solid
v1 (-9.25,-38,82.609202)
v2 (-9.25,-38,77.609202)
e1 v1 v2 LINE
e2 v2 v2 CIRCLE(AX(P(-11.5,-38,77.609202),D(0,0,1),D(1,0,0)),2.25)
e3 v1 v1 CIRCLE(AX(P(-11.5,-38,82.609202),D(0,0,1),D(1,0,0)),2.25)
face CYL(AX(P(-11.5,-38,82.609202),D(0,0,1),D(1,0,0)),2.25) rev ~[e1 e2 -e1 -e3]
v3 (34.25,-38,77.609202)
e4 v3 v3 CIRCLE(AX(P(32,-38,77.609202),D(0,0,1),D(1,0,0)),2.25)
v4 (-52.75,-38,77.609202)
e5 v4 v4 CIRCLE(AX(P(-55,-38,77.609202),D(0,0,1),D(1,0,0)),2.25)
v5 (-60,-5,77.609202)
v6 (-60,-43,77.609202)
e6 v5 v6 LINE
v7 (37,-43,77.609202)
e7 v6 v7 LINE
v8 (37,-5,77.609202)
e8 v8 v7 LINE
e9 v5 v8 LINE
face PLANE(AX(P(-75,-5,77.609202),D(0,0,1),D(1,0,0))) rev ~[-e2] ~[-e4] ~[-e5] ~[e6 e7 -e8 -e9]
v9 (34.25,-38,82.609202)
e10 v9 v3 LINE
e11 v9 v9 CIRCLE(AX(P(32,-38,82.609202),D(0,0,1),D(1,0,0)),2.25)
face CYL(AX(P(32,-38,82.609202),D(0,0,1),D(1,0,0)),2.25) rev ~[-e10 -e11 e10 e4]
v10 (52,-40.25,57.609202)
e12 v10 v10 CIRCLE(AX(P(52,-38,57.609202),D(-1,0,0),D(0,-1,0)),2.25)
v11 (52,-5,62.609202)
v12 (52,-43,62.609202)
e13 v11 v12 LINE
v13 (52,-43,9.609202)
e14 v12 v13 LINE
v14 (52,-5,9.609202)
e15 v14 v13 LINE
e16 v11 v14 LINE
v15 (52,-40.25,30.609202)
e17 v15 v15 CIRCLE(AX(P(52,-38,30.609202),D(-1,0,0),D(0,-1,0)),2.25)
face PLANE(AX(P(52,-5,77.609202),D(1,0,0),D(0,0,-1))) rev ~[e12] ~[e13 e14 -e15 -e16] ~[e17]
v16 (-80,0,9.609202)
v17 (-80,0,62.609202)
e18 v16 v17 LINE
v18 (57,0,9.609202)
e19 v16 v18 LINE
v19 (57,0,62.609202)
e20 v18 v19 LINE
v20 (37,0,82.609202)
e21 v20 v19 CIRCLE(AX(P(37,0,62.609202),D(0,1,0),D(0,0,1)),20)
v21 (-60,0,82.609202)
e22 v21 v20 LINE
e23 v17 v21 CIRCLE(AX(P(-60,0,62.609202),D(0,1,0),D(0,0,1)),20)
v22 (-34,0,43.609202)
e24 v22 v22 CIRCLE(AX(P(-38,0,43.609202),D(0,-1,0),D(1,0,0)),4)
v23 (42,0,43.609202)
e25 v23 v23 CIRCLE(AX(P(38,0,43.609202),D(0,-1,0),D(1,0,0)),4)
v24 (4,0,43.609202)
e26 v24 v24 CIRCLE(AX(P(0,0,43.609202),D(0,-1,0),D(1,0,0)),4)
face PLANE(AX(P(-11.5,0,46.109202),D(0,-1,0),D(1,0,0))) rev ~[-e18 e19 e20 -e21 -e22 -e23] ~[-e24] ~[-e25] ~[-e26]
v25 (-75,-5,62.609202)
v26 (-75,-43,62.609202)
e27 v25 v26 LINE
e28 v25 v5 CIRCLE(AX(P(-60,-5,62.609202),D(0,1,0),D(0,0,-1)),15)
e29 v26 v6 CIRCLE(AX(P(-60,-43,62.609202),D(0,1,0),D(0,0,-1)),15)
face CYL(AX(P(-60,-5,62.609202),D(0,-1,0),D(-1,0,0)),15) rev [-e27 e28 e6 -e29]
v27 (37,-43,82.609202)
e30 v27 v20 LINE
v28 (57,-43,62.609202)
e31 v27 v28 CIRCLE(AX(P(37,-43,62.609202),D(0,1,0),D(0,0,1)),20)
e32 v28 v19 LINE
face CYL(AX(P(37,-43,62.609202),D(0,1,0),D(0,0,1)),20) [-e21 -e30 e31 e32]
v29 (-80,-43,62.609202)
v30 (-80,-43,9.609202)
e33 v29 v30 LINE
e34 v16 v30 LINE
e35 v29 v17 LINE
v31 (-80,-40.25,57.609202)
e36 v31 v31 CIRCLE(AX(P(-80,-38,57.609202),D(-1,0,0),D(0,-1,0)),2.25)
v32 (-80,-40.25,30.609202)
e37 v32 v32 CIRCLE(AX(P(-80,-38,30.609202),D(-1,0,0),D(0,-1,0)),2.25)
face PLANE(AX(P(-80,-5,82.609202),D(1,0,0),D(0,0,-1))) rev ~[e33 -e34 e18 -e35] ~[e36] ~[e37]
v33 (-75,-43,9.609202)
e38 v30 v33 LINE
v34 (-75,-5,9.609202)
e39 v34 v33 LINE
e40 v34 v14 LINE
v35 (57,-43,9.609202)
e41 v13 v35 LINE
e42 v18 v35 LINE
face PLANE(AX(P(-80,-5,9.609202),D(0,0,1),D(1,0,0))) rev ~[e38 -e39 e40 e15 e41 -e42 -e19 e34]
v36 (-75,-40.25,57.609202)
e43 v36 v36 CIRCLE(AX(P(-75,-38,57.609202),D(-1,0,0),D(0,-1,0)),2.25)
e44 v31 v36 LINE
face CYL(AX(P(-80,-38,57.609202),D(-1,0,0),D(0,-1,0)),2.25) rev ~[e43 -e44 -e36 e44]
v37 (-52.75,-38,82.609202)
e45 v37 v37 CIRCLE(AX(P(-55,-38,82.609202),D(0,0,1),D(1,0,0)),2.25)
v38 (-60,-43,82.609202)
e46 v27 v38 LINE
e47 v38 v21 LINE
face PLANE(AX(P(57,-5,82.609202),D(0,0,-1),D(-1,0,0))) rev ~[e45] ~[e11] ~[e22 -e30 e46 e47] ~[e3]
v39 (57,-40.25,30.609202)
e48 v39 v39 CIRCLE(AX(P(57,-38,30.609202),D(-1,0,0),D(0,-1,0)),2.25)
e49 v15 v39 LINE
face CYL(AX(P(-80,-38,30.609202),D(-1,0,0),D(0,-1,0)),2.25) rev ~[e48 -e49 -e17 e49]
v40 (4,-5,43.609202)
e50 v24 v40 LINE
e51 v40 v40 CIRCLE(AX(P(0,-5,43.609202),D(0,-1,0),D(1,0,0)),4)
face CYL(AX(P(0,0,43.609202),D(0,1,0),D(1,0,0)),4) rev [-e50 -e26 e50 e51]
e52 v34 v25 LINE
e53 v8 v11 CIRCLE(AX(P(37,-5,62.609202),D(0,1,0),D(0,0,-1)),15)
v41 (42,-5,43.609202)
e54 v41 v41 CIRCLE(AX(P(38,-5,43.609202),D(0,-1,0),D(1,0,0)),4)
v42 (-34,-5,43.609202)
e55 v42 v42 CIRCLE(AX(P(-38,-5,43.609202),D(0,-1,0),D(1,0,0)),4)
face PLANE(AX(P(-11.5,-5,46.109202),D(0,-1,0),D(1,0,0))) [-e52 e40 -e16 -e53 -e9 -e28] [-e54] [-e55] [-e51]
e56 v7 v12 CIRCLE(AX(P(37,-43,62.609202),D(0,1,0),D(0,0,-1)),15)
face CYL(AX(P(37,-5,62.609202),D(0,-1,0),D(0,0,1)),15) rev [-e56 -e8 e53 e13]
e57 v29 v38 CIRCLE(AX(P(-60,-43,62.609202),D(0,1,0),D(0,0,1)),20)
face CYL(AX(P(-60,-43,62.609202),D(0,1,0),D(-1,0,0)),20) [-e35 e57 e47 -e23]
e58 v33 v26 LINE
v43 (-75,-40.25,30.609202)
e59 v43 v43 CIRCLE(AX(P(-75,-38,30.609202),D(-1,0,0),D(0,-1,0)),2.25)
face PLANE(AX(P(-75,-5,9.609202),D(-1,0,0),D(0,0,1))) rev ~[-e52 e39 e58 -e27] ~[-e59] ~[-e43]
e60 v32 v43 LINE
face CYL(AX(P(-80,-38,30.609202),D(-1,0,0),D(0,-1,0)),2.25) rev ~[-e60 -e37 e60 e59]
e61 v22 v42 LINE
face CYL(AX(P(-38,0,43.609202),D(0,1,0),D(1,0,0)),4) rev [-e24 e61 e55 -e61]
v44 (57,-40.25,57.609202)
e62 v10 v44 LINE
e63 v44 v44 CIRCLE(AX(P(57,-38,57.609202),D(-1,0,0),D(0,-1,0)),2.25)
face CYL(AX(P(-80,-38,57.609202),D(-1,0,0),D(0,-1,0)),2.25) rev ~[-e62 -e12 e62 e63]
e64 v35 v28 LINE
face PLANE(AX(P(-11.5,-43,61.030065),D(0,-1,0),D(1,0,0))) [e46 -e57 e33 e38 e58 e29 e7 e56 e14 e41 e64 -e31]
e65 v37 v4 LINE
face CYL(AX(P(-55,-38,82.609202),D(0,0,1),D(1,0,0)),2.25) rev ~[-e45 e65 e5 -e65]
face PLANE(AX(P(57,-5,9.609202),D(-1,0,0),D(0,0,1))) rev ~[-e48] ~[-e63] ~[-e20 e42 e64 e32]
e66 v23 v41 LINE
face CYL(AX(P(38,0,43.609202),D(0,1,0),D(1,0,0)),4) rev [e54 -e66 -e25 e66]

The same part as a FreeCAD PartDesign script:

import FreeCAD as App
import Part
import Sketcher
from FreeCAD import Vector


def edges_at(feature, points):
    """Names of the edges that pass closest to the given points."""
    edges = feature.Shape.Edges
    near = lambda p: min(range(len(edges)), key=lambda i: edges[i].distToShape(Part.Vertex(*p))[0])
    return sorted({f"Edge{near(p) + 1}" for p in points})

doc = App.newDocument("Part")
body = doc.addObject("PartDesign::Body", "Body")

# Sketch on XZ plane
sketch1 = doc.addObject("Sketcher::SketchObject", "Sketch")
body.addObject(sketch1)
sketch1.AttachmentSupport = (doc.XZ_Plane, [""])
sketch1.MapMode = "FlatFace"
sketch1.addGeometry([
    Part.LineSegment(Vector(-80, 82.6, 0), Vector(-80, 9.6, 0)),  # 0
    Part.LineSegment(Vector(-80, 9.6, 0), Vector(57, 9.6, 0)),  # 1
    Part.LineSegment(Vector(57, 9.6, 0), Vector(57, 82.6, 0)),  # 2
    Part.LineSegment(Vector(57, 82.6, 0), Vector(-80, 82.6, 0)),  # 3
    Part.Circle(Vector(-38, 43.6, 0), Vector(0, 0, 1), 4),  # 4
    Part.Circle(Vector(0, 43.6, 0), Vector(0, 0, 1), 4),  # 5
    Part.Circle(Vector(38, 43.6, 0), Vector(0, 0, 1), 4),  # 6
], False)
sketch1.addConstraint([
    Sketcher.Constraint("Coincident", 0, 2, 1, 1),
    Sketcher.Constraint("Coincident", 1, 2, 2, 1),
    Sketcher.Constraint("Coincident", 2, 2, 3, 1),
    Sketcher.Constraint("Coincident", 3, 2, 0, 1),
    Sketcher.Constraint("Vertical", 0),
    Sketcher.Constraint("Horizontal", 1),
    Sketcher.Constraint("Vertical", 2),
    Sketcher.Constraint("Horizontal", 3),
    Sketcher.Constraint("Equal", 4, 5),
    Sketcher.Constraint("Equal", 5, 6),
    Sketcher.Constraint("Symmetric", 4, 3, 6, 3, -2),
    Sketcher.Constraint("PointOnObject", 5, 3, -2),
    Sketcher.Constraint("Horizontal", 4, 3, 5, 3),
    Sketcher.Constraint("Diameter", 4, 8.0),
    Sketcher.Constraint("DistanceX", 1, 1, 1, 2, 137.0),
    Sketcher.Constraint("DistanceY", 0, 2, 0, 1, 73.0),
    Sketcher.Constraint("DistanceX", 4, 3, -1, 1, 38.0),
    Sketcher.Constraint("DistanceX", 0, 2, -1, 1, 80.0),
    Sketcher.Constraint("DistanceY", 0, 2, 4, 3, 34.0),
    Sketcher.Constraint("DistanceY", -1, 1, 2, 2, 82.609202),
])
pad1 = doc.addObject("PartDesign::Pad", "Pad")
body.addObject(pad1)
pad1.Profile = sketch1
pad1.Length = 5

# Sketch on XZ plane
sketch2 = doc.addObject("Sketcher::SketchObject", "Sketch001")
body.addObject(sketch2)
sketch2.AttachmentSupport = (doc.XZ_Plane, [""])
sketch2.MapMode = "FlatFace"
sketch2.AttachmentOffset = App.Placement(Vector(0, 0, 5), App.Rotation())
sketch2.addGeometry([
    Part.LineSegment(Vector(-80, 83, 0), Vector(-80, 10, 0)),  # 0
    Part.LineSegment(Vector(-80, 10, 0), Vector(-75, 10, 0)),  # 1
    Part.LineSegment(Vector(-75, 10, 0), Vector(-75, 78, 0)),  # 2
    Part.LineSegment(Vector(-75, 78, 0), Vector(52, 78, 0)),  # 3
    Part.LineSegment(Vector(52, 78, 0), Vector(52, 10, 0)),  # 4
    Part.LineSegment(Vector(52, 10, 0), Vector(57, 10, 0)),  # 5
    Part.LineSegment(Vector(57, 10, 0), Vector(57, 83, 0)),  # 6
    Part.LineSegment(Vector(57, 83, 0), Vector(-80, 83, 0)),  # 7
], False)
sketch2.addConstraint([
    Sketcher.Constraint("Coincident", 0, 2, 1, 1),
    Sketcher.Constraint("Coincident", 1, 2, 2, 1),
    Sketcher.Constraint("Coincident", 2, 2, 3, 1),
    Sketcher.Constraint("Coincident", 3, 2, 4, 1),
    Sketcher.Constraint("Coincident", 4, 2, 5, 1),
    Sketcher.Constraint("Coincident", 5, 2, 6, 1),
    Sketcher.Constraint("Coincident", 6, 2, 7, 1),
    Sketcher.Constraint("Coincident", 7, 2, 0, 1),
    Sketcher.Constraint("Vertical", 0),
    Sketcher.Constraint("Horizontal", 1),
    Sketcher.Constraint("Vertical", 2),
    Sketcher.Constraint("Horizontal", 3),
    Sketcher.Constraint("Vertical", 4),
    Sketcher.Constraint("Horizontal", 5),
    Sketcher.Constraint("Vertical", 6),
    Sketcher.Constraint("Horizontal", 7),
    Sketcher.Constraint("Horizontal", 1, 2, 4, 2),
    Sketcher.Constraint("Equal", 1, 5),
    Sketcher.Constraint("DistanceX", 1, 1, 1, 2, 5.0),
    Sketcher.Constraint("DistanceX", 3, 1, 3, 2, 127.0),
    Sketcher.Constraint("DistanceY", 0, 2, 0, 1, 73.0),
    Sketcher.Constraint("DistanceY", 2, 1, 2, 2, 68.0),
    Sketcher.Constraint("DistanceX", 0, 2, -1, 1, 80.0),
    Sketcher.Constraint("DistanceY", -1, 1, 2, 2, 77.609202),
])
pad2 = doc.addObject("PartDesign::Pad", "Pad001")
body.addObject(pad2)
pad2.Profile = sketch2
pad2.Length = 38

# Sketch on YZ plane
sketch3 = doc.addObject("Sketcher::SketchObject", "Sketch002")
body.addObject(sketch3)
sketch3.AttachmentSupport = (doc.YZ_Plane, [""])
sketch3.MapMode = "FlatFace"
sketch3.AttachmentOffset = App.Placement(Vector(0, 0, -80), App.Rotation())
sketch3.addGeometry([
    Part.Circle(Vector(-38, 57.6, 0), Vector(0, 0, 1), 2.2),
    Part.Circle(Vector(-38, 30.6, 0), Vector(0, 0, 1), 2.2),
], False)
sketch3.addConstraint([
    Sketcher.Constraint("Equal", 0, 1),
    Sketcher.Constraint("Vertical", 0, 3, 1, 3),
    Sketcher.Constraint("Diameter", 0, 4.5),
    Sketcher.Constraint("DistanceX", 0, 3, -1, 1, 38.0),
    Sketcher.Constraint("DistanceY", 1, 3, 0, 3, 27.0),
    Sketcher.Constraint("DistanceY", -1, 1, 1, 3, 30.609202),
])
pocket1 = doc.addObject("PartDesign::Pocket", "Pocket")
body.addObject(pocket1)
pocket1.Profile = sketch3
pocket1.Type = "ThroughAll"
pocket1.Reversed = True

# Sketch on XY plane
sketch4 = doc.addObject("Sketcher::SketchObject", "Sketch003")
body.addObject(sketch4)
sketch4.AttachmentSupport = (doc.XY_Plane, [""])
sketch4.MapMode = "FlatFace"
sketch4.AttachmentOffset = App.Placement(Vector(0, 0, 82.609202), App.Rotation())
sketch4.addGeometry([
    Part.Circle(Vector(-55, -38, 0), Vector(0, 0, 1), 2.2),
    Part.Circle(Vector(-11.5, -38, 0), Vector(0, 0, 1), 2.2),
    Part.Circle(Vector(32, -38, 0), Vector(0, 0, 1), 2.2),
], False)
sketch4.addConstraint([
    Sketcher.Constraint("Equal", 0, 1),
    Sketcher.Constraint("Equal", 1, 2),
    Sketcher.Constraint("Horizontal", 0, 3, 1, 3),
    Sketcher.Constraint("Horizontal", 1, 3, 2, 3),
    Sketcher.Constraint("Diameter", 0, 4.5),
    Sketcher.Constraint("DistanceX", 0, 3, -1, 1, 55.0),
    Sketcher.Constraint("DistanceY", 0, 3, -1, 1, 38.0),
    Sketcher.Constraint("DistanceX", -1, 1, 2, 3, 32.0),
    Sketcher.Constraint("DistanceX", 1, 3, -1, 1, 11.5),
])
pocket2 = doc.addObject("PartDesign::Pocket", "Pocket001")
body.addObject(pocket2)
pocket2.Profile = sketch4
pocket2.Type = "ThroughAll"
doc.recompute()

fillet = doc.addObject("PartDesign::Fillet", "Fillet")
body.addObject(fillet)
fillet.Base = (pocket2, edges_at(pocket2, [(-75, -24, 77.609), (52, -24, 77.609)]))
fillet.Radius = 15
doc.recompute()

fillet2 = doc.addObject("PartDesign::Fillet", "Fillet001")
body.addObject(fillet2)
fillet2.Base = (fillet, edges_at(fillet, [(-80, -21.5, 82.609), (57, -21.5, 82.609)]))
fillet2.Radius = 20

doc.recompute()
